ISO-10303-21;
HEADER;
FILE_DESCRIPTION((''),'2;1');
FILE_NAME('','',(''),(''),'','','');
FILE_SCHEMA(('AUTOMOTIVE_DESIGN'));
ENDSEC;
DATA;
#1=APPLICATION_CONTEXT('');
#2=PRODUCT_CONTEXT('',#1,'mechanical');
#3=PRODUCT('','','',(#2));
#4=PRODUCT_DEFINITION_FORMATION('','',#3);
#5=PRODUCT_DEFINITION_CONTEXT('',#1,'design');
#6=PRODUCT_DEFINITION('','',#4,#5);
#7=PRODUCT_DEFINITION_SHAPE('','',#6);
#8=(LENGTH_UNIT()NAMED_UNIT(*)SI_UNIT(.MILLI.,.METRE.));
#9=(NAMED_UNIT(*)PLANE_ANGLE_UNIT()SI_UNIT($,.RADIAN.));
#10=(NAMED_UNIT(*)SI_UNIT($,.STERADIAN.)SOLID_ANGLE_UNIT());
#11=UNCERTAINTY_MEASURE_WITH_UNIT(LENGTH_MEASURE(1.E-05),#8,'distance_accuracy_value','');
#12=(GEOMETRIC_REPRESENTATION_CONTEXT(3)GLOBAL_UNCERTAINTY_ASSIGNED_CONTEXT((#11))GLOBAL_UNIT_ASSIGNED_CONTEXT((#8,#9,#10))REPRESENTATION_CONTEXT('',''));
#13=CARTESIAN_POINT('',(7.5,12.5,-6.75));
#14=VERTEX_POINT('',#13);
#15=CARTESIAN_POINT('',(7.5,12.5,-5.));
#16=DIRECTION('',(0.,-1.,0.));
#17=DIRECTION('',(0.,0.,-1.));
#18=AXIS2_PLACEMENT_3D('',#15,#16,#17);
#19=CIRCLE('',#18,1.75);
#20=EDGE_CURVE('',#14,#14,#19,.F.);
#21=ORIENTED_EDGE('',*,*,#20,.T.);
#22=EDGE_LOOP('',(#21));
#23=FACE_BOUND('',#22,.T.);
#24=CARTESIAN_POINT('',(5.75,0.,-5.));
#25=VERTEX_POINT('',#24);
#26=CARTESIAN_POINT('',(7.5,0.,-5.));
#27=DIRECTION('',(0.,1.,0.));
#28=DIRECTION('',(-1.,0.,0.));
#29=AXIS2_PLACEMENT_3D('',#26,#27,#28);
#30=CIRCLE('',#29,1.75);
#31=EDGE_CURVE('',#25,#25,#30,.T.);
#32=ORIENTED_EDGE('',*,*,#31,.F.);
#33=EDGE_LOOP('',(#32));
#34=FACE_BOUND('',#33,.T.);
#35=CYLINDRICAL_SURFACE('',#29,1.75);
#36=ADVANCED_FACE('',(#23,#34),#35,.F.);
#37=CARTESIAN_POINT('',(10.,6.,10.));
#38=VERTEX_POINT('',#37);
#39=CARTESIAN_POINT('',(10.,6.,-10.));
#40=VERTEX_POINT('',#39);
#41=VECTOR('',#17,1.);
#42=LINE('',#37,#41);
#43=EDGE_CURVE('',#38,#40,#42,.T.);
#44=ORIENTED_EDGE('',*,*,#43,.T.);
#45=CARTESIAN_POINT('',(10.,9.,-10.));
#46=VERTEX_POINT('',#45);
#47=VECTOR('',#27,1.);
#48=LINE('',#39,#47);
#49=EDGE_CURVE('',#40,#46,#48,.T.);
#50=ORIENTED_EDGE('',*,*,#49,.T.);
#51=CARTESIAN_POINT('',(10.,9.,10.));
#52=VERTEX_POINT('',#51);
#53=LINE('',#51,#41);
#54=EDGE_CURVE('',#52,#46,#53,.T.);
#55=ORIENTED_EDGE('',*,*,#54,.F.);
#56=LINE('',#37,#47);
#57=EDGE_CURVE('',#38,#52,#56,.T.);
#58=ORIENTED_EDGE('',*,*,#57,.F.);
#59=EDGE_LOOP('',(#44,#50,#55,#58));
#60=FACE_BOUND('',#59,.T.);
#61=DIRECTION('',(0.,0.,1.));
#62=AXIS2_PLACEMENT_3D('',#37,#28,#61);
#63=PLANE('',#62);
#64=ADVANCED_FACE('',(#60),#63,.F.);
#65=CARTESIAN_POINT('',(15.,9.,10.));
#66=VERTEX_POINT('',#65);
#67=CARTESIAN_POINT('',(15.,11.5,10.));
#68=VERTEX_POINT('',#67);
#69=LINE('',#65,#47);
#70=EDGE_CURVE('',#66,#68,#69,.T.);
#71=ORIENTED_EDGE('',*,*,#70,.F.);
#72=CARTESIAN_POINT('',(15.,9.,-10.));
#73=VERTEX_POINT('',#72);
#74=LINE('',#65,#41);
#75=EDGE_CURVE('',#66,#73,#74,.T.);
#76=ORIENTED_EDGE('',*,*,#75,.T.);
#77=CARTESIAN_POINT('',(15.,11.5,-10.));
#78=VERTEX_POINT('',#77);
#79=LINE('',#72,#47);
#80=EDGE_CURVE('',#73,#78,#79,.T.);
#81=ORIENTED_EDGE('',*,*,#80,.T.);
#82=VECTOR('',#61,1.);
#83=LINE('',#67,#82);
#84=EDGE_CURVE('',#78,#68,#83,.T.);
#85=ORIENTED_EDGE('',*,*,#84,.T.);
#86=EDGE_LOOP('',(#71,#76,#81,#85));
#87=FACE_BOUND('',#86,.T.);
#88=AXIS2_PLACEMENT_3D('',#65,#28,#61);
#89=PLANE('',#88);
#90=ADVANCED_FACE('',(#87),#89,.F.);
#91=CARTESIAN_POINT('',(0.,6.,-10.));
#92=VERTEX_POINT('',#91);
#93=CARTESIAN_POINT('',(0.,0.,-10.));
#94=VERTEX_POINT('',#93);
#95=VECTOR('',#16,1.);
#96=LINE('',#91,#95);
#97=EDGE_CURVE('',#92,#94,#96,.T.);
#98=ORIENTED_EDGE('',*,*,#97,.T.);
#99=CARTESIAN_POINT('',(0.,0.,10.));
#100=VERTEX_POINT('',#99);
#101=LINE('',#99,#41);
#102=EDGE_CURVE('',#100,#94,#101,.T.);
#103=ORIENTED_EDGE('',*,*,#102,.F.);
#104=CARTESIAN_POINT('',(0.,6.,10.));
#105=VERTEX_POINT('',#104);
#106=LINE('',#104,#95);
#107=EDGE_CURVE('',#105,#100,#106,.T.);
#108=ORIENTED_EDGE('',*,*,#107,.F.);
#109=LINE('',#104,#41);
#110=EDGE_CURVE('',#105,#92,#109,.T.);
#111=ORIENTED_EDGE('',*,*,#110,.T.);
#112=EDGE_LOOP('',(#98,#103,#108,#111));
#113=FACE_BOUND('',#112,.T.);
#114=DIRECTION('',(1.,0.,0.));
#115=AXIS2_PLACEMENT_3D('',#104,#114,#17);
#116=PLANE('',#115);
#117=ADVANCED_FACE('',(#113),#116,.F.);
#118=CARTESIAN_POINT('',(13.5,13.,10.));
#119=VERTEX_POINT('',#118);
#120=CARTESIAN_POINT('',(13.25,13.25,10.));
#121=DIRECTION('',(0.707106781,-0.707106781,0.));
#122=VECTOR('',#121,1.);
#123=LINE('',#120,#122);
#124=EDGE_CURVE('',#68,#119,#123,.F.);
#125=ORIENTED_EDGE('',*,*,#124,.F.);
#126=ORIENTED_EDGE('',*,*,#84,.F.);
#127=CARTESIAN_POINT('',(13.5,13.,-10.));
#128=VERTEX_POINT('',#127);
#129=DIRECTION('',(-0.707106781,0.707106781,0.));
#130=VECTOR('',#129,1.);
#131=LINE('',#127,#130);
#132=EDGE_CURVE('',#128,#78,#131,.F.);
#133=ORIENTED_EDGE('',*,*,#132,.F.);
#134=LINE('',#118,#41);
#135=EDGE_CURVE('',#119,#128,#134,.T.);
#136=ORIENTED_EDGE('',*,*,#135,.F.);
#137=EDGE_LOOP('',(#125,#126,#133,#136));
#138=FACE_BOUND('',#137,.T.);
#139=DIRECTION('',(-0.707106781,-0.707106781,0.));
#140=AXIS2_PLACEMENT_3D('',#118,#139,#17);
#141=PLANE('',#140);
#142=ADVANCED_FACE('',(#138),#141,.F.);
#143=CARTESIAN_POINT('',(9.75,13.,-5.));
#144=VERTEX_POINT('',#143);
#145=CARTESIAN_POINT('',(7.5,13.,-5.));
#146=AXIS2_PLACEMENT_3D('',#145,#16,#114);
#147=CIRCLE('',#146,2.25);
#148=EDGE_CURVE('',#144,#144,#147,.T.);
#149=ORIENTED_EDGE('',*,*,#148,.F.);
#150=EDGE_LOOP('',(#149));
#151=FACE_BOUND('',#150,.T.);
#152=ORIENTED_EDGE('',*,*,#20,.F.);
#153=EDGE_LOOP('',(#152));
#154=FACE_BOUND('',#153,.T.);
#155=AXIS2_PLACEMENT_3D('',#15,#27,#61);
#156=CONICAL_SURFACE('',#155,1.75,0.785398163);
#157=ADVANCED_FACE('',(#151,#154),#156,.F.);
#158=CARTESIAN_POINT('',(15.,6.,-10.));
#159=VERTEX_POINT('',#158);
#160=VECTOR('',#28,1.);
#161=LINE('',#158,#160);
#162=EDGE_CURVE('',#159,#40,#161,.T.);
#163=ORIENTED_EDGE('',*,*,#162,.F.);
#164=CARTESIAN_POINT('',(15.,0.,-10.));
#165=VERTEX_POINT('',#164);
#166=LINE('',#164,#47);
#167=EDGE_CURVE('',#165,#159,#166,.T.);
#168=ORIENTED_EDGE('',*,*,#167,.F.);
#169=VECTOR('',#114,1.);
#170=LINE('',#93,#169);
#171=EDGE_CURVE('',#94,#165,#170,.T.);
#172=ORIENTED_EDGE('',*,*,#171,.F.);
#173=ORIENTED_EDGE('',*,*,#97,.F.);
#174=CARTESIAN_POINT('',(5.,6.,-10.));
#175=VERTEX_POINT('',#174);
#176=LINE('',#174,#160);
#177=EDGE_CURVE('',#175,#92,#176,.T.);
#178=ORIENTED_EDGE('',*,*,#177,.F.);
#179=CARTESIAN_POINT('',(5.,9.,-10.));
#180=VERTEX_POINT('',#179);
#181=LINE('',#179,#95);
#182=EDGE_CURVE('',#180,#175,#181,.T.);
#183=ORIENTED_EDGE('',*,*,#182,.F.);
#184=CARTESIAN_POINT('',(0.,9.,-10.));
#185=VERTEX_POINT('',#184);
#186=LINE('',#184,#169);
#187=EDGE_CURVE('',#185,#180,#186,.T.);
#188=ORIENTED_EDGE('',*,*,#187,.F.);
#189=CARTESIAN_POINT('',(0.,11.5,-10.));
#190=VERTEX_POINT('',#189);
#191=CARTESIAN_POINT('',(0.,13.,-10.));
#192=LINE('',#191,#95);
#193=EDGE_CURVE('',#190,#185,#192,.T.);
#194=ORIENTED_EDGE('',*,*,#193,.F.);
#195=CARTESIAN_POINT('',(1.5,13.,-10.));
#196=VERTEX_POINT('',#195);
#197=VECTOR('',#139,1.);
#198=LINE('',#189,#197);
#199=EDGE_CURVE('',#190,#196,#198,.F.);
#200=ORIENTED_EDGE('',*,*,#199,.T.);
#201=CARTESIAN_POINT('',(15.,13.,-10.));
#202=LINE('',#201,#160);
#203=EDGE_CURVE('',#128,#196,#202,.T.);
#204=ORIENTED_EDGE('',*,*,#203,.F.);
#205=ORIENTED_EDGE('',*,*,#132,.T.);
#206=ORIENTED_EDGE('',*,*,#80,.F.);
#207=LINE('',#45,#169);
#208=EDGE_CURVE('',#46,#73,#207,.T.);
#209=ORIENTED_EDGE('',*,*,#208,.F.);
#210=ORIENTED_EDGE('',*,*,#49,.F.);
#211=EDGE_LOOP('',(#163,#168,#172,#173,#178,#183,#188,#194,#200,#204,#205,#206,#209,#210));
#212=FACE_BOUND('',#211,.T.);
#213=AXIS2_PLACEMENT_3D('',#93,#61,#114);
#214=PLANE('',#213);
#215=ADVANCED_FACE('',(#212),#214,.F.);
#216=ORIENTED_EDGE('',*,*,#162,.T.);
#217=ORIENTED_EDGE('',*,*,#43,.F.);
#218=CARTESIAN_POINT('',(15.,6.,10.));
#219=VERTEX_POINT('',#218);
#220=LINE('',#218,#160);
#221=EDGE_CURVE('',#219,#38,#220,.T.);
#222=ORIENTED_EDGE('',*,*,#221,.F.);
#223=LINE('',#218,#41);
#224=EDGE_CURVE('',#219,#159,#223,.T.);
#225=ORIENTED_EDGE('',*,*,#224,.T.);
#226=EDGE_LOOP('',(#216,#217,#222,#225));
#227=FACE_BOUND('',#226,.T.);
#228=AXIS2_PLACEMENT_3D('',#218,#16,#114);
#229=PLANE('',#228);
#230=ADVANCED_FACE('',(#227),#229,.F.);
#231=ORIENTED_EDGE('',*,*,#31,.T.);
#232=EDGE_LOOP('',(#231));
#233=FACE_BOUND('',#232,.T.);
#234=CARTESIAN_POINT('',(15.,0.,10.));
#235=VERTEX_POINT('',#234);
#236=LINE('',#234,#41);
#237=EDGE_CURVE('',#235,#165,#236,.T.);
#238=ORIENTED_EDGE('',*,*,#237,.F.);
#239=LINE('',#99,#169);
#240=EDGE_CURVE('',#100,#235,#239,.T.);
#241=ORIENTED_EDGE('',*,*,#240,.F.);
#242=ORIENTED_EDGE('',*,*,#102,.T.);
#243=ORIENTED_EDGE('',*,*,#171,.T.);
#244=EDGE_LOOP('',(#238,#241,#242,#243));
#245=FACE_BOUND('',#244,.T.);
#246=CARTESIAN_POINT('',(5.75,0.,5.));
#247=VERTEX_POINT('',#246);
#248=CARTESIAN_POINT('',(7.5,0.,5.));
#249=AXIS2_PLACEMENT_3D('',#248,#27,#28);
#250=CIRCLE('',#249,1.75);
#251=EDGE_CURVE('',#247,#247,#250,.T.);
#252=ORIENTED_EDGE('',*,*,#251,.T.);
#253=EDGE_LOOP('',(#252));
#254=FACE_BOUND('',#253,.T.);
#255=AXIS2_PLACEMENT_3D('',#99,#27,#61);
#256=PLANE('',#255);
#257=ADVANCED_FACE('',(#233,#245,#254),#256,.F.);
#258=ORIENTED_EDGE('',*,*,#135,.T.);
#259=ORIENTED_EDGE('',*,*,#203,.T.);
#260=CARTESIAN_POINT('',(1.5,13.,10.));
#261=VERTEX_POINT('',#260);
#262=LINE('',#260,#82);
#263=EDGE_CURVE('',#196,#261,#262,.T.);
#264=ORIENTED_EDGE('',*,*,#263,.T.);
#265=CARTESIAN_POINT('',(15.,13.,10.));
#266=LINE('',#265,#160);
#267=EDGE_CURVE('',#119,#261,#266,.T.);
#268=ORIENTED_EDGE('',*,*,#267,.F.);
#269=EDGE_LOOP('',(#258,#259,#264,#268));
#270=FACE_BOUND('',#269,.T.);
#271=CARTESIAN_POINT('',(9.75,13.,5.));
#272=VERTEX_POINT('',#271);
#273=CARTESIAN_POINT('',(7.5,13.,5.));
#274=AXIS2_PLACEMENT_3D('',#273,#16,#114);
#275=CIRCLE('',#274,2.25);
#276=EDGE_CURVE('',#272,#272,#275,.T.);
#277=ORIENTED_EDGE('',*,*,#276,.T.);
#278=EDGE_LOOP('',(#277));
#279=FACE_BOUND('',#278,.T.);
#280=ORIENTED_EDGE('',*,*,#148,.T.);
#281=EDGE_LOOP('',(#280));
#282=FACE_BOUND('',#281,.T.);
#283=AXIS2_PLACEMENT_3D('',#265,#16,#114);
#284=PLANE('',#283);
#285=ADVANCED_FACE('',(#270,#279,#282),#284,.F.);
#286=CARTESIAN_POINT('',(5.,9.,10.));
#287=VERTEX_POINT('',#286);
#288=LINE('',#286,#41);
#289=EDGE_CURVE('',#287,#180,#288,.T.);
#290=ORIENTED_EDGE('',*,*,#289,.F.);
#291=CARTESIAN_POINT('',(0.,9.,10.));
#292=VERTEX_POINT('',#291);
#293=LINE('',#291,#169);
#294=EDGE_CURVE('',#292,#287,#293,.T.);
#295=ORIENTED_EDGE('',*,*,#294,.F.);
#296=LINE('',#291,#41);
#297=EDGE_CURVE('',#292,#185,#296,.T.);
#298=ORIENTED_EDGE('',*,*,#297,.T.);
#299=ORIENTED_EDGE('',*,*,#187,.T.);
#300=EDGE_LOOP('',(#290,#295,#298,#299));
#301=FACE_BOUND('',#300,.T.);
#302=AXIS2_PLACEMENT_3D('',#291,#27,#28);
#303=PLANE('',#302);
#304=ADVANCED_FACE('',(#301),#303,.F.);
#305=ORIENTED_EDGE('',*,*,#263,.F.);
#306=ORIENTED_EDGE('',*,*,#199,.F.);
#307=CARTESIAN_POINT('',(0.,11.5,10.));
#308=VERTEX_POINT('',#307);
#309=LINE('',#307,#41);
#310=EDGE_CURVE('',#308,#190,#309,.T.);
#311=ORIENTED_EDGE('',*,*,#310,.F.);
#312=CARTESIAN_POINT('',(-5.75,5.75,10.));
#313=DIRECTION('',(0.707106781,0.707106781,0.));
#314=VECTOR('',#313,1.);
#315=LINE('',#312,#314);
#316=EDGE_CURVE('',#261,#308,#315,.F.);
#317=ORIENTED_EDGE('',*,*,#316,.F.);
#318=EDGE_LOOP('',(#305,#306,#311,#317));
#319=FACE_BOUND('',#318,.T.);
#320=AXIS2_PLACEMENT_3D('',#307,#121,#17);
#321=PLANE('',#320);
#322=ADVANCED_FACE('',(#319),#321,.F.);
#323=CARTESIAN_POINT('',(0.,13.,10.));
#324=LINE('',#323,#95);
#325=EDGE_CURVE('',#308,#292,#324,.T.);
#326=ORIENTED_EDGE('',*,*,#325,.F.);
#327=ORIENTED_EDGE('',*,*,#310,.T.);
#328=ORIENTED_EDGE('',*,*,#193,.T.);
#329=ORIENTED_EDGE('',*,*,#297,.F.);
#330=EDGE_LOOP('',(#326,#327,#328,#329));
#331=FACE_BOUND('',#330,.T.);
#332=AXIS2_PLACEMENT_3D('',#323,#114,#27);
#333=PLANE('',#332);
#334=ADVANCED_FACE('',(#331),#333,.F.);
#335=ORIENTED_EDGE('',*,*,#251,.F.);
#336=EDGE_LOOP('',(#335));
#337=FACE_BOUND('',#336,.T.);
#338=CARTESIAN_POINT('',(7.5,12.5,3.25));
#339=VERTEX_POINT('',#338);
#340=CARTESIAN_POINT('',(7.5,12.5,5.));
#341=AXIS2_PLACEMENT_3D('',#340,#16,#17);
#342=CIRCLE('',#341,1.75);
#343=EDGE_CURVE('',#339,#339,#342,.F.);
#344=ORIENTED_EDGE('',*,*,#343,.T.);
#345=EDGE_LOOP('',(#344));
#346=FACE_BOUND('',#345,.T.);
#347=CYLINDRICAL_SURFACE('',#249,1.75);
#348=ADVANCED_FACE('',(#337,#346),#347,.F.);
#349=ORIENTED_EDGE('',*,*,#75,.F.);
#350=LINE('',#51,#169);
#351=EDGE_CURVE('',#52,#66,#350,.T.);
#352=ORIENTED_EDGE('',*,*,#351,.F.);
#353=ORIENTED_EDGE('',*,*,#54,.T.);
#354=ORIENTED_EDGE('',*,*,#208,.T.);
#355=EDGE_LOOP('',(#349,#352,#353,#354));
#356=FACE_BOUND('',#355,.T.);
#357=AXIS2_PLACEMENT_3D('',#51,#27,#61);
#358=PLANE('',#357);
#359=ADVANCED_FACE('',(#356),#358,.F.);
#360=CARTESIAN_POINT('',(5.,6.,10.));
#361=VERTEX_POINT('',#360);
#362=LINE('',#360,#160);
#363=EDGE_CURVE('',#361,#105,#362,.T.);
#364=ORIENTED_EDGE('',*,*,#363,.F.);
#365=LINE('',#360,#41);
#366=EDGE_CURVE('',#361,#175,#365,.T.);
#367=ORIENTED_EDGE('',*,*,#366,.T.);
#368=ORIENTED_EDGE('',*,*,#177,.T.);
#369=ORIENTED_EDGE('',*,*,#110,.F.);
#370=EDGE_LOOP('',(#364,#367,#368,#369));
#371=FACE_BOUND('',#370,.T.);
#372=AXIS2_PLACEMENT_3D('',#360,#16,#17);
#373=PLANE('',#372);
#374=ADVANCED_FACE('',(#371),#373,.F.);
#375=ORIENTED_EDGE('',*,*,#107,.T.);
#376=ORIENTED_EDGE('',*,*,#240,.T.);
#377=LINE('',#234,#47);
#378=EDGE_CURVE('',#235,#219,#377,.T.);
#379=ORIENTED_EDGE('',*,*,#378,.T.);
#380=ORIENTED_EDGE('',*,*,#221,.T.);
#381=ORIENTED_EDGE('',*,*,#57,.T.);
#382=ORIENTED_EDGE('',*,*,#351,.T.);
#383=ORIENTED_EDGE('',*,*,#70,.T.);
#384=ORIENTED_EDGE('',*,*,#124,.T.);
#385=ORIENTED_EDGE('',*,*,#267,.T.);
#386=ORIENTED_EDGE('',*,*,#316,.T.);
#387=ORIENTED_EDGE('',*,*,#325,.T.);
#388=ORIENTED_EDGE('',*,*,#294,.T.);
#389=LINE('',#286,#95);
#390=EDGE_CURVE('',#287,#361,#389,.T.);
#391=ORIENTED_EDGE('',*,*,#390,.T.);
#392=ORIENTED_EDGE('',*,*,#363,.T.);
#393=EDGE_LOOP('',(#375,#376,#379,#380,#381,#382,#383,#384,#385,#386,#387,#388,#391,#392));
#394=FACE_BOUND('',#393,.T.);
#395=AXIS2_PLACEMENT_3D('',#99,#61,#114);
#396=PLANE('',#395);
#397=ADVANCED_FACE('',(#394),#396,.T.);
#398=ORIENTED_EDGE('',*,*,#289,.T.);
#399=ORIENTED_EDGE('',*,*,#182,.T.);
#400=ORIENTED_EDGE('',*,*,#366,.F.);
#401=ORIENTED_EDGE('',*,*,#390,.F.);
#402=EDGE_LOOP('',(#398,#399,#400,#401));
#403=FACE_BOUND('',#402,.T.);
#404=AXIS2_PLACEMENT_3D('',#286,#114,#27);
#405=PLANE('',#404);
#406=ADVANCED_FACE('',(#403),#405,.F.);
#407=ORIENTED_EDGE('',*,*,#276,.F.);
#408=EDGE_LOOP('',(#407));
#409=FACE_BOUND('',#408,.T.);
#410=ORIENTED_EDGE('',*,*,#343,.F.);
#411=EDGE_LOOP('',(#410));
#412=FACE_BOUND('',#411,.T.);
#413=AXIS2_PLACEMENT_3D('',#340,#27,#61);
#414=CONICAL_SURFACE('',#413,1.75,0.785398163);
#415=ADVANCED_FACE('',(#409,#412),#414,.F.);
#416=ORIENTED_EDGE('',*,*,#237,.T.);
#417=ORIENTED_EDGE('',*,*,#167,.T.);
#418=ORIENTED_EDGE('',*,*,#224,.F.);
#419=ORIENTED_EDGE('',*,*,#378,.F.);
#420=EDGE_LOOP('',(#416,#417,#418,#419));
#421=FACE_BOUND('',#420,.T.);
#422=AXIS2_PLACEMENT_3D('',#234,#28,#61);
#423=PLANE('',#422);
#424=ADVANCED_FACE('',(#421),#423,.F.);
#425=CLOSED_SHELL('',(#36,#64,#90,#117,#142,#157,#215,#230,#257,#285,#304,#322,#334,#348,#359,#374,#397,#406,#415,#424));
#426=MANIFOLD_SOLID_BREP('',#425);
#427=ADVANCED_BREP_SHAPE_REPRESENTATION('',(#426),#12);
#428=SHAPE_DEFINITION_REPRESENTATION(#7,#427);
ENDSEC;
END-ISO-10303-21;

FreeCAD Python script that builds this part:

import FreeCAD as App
import Part
import Sketcher

V = App.Vector
Q = App.Units.Quantity


def edges_at(feature, points):
    """Names of the edges that pass closest to the given points."""
    edges = feature.Shape.Edges
    near = lambda p: min(range(len(edges)), key=lambda i: edges[i].distToShape(Part.Vertex(*p))[0])
    return sorted({f"Edge{near(p) + 1}" for p in points})

doc = App.newDocument("Part")
body = doc.addObject("PartDesign::Body", "Body")

sketch1 = body.newObject("Sketcher::SketchObject", "Sketch")
sketch1.AttachmentSupport = (doc.getObject("XY_Plane"), [""])
sketch1.MapMode = "FlatFace"
sketch1.addGeometry([
    Part.LineSegment(V(0, 0, 0), V(15, 0, 0)),
    Part.LineSegment(V(15, 0, 0), V(15, 6, 0)),
    Part.LineSegment(V(15, 6, 0), V(10, 6, 0)),
    Part.LineSegment(V(10, 6, 0), V(10, 9, 0)),
    Part.LineSegment(V(10, 9, 0), V(15, 9, 0)),
    Part.LineSegment(V(15, 9, 0), V(15, 13, 0)),
    Part.LineSegment(V(15, 13, 0), V(0, 13, 0)),
    Part.LineSegment(V(0, 13, 0), V(0, 9, 0)),
    Part.LineSegment(V(0, 9, 0), V(5, 9, 0)),
    Part.LineSegment(V(5, 9, 0), V(5, 6, 0)),
    Part.LineSegment(V(5, 6, 0), V(0, 6, 0)),
    Part.LineSegment(V(0, 6, 0), V(0, 0, 0)),
], False)
sketch1.addConstraint([
    Sketcher.Constraint("Coincident", 0, 2, 1, 1),
    Sketcher.Constraint("Coincident", 1, 2, 2, 1),
    Sketcher.Constraint("Coincident", 2, 2, 3, 1),
    Sketcher.Constraint("Coincident", 3, 2, 4, 1),
    Sketcher.Constraint("Coincident", 4, 2, 5, 1),
    Sketcher.Constraint("Coincident", 5, 2, 6, 1),
    Sketcher.Constraint("Coincident", 6, 2, 7, 1),
    Sketcher.Constraint("Coincident", 7, 2, 8, 1),
    Sketcher.Constraint("Coincident", 8, 2, 9, 1),
    Sketcher.Constraint("Coincident", 9, 2, 10, 1),
    Sketcher.Constraint("Coincident", 10, 2, 11, 1),
    Sketcher.Constraint("Coincident", 11, 2, 0, 1),
    Sketcher.Constraint("Horizontal", 0),
    Sketcher.Constraint("Vertical", 1),
    Sketcher.Constraint("Horizontal", 2),
    Sketcher.Constraint("Vertical", 3),
    Sketcher.Constraint("Horizontal", 4),
    Sketcher.Constraint("Vertical", 5),
    Sketcher.Constraint("Horizontal", 6),
    Sketcher.Constraint("Vertical", 7),
    Sketcher.Constraint("Horizontal", 8),
    Sketcher.Constraint("Vertical", 9),
    Sketcher.Constraint("Horizontal", 10),
    Sketcher.Constraint("Vertical", 11),
    Sketcher.Constraint("Coincident", 11, 2, -1, 1),
    Sketcher.Constraint("PointOnObject", 6, 2, -2),
    Sketcher.Constraint("Horizontal", 4, 2, 7, 2),
    Sketcher.Constraint("Horizontal", 2, 2, 9, 2),
    Sketcher.Constraint("Vertical", 1, 2, 4, 2),
    Sketcher.Constraint("Equal", 4, 8),
    Sketcher.Constraint("DistanceX", 0, 1, 0, 2, Q("15 mm")),
    Sketcher.Constraint("DistanceX", 2, 2, 2, 1, Q("5 mm")),
    Sketcher.Constraint("DistanceY", 1, 1, 1, 2, Q("6 mm")),
    Sketcher.Constraint("DistanceY", 3, 1, 3, 2, Q("3 mm")),
    Sketcher.Constraint("DistanceY", 5, 1, 5, 2, Q("4 mm")),
])
pad1 = body.newObject("PartDesign::Pad", "Pad")
pad1.Profile = sketch1
pad1.Length = 20
pad1.Midplane = True

sketch2 = body.newObject("Sketcher::SketchObject", "Sketch001")
sketch2.AttachmentSupport = (doc.getObject("XZ_Plane"), [""])
sketch2.MapMode = "FlatFace"
sketch2.AttachmentOffset = App.Placement(V(0, 0, -13), App.Rotation())
sketch2.addGeometry([
    Part.Circle(V(7.5, 5, 0), V(0, 0, 1), 1.8),
    Part.Circle(V(7.5, -5, 0), V(0, 0, 1), 1.8),
], False)
sketch2.addConstraint([
    Sketcher.Constraint("Equal", 0, 1),
    Sketcher.Constraint("Symmetric", 0, 3, 1, 3, -1),
    Sketcher.Constraint("Diameter", 0, Q("3.5 mm")),
    Sketcher.Constraint("DistanceY", -1, 1, 0, 3, Q("5 mm")),
    Sketcher.Constraint("DistanceX", -1, 1, 0, 3, Q("7.5 mm")),
])
pocket1 = body.newObject("PartDesign::Pocket", "Pocket")
pocket1.Profile = sketch2
pocket1.Type = "ThroughAll"
pocket1.Reversed = True
doc.recompute()

chamfer = body.newObject("PartDesign::Chamfer", "Chamfer")
chamfer.Base = (pocket1, edges_at(pocket1, [(0, 13, 0), (15, 13, 0)]))
chamfer.Size = 1.5
doc.recompute()

chamfer2 = body.newObject("PartDesign::Chamfer", "Chamfer001")
chamfer2.Base = (chamfer, edges_at(chamfer, [(5.75, 13, 5), (5.75, 13, -5)]))
chamfer2.Size = 0.5

doc.recompute()
